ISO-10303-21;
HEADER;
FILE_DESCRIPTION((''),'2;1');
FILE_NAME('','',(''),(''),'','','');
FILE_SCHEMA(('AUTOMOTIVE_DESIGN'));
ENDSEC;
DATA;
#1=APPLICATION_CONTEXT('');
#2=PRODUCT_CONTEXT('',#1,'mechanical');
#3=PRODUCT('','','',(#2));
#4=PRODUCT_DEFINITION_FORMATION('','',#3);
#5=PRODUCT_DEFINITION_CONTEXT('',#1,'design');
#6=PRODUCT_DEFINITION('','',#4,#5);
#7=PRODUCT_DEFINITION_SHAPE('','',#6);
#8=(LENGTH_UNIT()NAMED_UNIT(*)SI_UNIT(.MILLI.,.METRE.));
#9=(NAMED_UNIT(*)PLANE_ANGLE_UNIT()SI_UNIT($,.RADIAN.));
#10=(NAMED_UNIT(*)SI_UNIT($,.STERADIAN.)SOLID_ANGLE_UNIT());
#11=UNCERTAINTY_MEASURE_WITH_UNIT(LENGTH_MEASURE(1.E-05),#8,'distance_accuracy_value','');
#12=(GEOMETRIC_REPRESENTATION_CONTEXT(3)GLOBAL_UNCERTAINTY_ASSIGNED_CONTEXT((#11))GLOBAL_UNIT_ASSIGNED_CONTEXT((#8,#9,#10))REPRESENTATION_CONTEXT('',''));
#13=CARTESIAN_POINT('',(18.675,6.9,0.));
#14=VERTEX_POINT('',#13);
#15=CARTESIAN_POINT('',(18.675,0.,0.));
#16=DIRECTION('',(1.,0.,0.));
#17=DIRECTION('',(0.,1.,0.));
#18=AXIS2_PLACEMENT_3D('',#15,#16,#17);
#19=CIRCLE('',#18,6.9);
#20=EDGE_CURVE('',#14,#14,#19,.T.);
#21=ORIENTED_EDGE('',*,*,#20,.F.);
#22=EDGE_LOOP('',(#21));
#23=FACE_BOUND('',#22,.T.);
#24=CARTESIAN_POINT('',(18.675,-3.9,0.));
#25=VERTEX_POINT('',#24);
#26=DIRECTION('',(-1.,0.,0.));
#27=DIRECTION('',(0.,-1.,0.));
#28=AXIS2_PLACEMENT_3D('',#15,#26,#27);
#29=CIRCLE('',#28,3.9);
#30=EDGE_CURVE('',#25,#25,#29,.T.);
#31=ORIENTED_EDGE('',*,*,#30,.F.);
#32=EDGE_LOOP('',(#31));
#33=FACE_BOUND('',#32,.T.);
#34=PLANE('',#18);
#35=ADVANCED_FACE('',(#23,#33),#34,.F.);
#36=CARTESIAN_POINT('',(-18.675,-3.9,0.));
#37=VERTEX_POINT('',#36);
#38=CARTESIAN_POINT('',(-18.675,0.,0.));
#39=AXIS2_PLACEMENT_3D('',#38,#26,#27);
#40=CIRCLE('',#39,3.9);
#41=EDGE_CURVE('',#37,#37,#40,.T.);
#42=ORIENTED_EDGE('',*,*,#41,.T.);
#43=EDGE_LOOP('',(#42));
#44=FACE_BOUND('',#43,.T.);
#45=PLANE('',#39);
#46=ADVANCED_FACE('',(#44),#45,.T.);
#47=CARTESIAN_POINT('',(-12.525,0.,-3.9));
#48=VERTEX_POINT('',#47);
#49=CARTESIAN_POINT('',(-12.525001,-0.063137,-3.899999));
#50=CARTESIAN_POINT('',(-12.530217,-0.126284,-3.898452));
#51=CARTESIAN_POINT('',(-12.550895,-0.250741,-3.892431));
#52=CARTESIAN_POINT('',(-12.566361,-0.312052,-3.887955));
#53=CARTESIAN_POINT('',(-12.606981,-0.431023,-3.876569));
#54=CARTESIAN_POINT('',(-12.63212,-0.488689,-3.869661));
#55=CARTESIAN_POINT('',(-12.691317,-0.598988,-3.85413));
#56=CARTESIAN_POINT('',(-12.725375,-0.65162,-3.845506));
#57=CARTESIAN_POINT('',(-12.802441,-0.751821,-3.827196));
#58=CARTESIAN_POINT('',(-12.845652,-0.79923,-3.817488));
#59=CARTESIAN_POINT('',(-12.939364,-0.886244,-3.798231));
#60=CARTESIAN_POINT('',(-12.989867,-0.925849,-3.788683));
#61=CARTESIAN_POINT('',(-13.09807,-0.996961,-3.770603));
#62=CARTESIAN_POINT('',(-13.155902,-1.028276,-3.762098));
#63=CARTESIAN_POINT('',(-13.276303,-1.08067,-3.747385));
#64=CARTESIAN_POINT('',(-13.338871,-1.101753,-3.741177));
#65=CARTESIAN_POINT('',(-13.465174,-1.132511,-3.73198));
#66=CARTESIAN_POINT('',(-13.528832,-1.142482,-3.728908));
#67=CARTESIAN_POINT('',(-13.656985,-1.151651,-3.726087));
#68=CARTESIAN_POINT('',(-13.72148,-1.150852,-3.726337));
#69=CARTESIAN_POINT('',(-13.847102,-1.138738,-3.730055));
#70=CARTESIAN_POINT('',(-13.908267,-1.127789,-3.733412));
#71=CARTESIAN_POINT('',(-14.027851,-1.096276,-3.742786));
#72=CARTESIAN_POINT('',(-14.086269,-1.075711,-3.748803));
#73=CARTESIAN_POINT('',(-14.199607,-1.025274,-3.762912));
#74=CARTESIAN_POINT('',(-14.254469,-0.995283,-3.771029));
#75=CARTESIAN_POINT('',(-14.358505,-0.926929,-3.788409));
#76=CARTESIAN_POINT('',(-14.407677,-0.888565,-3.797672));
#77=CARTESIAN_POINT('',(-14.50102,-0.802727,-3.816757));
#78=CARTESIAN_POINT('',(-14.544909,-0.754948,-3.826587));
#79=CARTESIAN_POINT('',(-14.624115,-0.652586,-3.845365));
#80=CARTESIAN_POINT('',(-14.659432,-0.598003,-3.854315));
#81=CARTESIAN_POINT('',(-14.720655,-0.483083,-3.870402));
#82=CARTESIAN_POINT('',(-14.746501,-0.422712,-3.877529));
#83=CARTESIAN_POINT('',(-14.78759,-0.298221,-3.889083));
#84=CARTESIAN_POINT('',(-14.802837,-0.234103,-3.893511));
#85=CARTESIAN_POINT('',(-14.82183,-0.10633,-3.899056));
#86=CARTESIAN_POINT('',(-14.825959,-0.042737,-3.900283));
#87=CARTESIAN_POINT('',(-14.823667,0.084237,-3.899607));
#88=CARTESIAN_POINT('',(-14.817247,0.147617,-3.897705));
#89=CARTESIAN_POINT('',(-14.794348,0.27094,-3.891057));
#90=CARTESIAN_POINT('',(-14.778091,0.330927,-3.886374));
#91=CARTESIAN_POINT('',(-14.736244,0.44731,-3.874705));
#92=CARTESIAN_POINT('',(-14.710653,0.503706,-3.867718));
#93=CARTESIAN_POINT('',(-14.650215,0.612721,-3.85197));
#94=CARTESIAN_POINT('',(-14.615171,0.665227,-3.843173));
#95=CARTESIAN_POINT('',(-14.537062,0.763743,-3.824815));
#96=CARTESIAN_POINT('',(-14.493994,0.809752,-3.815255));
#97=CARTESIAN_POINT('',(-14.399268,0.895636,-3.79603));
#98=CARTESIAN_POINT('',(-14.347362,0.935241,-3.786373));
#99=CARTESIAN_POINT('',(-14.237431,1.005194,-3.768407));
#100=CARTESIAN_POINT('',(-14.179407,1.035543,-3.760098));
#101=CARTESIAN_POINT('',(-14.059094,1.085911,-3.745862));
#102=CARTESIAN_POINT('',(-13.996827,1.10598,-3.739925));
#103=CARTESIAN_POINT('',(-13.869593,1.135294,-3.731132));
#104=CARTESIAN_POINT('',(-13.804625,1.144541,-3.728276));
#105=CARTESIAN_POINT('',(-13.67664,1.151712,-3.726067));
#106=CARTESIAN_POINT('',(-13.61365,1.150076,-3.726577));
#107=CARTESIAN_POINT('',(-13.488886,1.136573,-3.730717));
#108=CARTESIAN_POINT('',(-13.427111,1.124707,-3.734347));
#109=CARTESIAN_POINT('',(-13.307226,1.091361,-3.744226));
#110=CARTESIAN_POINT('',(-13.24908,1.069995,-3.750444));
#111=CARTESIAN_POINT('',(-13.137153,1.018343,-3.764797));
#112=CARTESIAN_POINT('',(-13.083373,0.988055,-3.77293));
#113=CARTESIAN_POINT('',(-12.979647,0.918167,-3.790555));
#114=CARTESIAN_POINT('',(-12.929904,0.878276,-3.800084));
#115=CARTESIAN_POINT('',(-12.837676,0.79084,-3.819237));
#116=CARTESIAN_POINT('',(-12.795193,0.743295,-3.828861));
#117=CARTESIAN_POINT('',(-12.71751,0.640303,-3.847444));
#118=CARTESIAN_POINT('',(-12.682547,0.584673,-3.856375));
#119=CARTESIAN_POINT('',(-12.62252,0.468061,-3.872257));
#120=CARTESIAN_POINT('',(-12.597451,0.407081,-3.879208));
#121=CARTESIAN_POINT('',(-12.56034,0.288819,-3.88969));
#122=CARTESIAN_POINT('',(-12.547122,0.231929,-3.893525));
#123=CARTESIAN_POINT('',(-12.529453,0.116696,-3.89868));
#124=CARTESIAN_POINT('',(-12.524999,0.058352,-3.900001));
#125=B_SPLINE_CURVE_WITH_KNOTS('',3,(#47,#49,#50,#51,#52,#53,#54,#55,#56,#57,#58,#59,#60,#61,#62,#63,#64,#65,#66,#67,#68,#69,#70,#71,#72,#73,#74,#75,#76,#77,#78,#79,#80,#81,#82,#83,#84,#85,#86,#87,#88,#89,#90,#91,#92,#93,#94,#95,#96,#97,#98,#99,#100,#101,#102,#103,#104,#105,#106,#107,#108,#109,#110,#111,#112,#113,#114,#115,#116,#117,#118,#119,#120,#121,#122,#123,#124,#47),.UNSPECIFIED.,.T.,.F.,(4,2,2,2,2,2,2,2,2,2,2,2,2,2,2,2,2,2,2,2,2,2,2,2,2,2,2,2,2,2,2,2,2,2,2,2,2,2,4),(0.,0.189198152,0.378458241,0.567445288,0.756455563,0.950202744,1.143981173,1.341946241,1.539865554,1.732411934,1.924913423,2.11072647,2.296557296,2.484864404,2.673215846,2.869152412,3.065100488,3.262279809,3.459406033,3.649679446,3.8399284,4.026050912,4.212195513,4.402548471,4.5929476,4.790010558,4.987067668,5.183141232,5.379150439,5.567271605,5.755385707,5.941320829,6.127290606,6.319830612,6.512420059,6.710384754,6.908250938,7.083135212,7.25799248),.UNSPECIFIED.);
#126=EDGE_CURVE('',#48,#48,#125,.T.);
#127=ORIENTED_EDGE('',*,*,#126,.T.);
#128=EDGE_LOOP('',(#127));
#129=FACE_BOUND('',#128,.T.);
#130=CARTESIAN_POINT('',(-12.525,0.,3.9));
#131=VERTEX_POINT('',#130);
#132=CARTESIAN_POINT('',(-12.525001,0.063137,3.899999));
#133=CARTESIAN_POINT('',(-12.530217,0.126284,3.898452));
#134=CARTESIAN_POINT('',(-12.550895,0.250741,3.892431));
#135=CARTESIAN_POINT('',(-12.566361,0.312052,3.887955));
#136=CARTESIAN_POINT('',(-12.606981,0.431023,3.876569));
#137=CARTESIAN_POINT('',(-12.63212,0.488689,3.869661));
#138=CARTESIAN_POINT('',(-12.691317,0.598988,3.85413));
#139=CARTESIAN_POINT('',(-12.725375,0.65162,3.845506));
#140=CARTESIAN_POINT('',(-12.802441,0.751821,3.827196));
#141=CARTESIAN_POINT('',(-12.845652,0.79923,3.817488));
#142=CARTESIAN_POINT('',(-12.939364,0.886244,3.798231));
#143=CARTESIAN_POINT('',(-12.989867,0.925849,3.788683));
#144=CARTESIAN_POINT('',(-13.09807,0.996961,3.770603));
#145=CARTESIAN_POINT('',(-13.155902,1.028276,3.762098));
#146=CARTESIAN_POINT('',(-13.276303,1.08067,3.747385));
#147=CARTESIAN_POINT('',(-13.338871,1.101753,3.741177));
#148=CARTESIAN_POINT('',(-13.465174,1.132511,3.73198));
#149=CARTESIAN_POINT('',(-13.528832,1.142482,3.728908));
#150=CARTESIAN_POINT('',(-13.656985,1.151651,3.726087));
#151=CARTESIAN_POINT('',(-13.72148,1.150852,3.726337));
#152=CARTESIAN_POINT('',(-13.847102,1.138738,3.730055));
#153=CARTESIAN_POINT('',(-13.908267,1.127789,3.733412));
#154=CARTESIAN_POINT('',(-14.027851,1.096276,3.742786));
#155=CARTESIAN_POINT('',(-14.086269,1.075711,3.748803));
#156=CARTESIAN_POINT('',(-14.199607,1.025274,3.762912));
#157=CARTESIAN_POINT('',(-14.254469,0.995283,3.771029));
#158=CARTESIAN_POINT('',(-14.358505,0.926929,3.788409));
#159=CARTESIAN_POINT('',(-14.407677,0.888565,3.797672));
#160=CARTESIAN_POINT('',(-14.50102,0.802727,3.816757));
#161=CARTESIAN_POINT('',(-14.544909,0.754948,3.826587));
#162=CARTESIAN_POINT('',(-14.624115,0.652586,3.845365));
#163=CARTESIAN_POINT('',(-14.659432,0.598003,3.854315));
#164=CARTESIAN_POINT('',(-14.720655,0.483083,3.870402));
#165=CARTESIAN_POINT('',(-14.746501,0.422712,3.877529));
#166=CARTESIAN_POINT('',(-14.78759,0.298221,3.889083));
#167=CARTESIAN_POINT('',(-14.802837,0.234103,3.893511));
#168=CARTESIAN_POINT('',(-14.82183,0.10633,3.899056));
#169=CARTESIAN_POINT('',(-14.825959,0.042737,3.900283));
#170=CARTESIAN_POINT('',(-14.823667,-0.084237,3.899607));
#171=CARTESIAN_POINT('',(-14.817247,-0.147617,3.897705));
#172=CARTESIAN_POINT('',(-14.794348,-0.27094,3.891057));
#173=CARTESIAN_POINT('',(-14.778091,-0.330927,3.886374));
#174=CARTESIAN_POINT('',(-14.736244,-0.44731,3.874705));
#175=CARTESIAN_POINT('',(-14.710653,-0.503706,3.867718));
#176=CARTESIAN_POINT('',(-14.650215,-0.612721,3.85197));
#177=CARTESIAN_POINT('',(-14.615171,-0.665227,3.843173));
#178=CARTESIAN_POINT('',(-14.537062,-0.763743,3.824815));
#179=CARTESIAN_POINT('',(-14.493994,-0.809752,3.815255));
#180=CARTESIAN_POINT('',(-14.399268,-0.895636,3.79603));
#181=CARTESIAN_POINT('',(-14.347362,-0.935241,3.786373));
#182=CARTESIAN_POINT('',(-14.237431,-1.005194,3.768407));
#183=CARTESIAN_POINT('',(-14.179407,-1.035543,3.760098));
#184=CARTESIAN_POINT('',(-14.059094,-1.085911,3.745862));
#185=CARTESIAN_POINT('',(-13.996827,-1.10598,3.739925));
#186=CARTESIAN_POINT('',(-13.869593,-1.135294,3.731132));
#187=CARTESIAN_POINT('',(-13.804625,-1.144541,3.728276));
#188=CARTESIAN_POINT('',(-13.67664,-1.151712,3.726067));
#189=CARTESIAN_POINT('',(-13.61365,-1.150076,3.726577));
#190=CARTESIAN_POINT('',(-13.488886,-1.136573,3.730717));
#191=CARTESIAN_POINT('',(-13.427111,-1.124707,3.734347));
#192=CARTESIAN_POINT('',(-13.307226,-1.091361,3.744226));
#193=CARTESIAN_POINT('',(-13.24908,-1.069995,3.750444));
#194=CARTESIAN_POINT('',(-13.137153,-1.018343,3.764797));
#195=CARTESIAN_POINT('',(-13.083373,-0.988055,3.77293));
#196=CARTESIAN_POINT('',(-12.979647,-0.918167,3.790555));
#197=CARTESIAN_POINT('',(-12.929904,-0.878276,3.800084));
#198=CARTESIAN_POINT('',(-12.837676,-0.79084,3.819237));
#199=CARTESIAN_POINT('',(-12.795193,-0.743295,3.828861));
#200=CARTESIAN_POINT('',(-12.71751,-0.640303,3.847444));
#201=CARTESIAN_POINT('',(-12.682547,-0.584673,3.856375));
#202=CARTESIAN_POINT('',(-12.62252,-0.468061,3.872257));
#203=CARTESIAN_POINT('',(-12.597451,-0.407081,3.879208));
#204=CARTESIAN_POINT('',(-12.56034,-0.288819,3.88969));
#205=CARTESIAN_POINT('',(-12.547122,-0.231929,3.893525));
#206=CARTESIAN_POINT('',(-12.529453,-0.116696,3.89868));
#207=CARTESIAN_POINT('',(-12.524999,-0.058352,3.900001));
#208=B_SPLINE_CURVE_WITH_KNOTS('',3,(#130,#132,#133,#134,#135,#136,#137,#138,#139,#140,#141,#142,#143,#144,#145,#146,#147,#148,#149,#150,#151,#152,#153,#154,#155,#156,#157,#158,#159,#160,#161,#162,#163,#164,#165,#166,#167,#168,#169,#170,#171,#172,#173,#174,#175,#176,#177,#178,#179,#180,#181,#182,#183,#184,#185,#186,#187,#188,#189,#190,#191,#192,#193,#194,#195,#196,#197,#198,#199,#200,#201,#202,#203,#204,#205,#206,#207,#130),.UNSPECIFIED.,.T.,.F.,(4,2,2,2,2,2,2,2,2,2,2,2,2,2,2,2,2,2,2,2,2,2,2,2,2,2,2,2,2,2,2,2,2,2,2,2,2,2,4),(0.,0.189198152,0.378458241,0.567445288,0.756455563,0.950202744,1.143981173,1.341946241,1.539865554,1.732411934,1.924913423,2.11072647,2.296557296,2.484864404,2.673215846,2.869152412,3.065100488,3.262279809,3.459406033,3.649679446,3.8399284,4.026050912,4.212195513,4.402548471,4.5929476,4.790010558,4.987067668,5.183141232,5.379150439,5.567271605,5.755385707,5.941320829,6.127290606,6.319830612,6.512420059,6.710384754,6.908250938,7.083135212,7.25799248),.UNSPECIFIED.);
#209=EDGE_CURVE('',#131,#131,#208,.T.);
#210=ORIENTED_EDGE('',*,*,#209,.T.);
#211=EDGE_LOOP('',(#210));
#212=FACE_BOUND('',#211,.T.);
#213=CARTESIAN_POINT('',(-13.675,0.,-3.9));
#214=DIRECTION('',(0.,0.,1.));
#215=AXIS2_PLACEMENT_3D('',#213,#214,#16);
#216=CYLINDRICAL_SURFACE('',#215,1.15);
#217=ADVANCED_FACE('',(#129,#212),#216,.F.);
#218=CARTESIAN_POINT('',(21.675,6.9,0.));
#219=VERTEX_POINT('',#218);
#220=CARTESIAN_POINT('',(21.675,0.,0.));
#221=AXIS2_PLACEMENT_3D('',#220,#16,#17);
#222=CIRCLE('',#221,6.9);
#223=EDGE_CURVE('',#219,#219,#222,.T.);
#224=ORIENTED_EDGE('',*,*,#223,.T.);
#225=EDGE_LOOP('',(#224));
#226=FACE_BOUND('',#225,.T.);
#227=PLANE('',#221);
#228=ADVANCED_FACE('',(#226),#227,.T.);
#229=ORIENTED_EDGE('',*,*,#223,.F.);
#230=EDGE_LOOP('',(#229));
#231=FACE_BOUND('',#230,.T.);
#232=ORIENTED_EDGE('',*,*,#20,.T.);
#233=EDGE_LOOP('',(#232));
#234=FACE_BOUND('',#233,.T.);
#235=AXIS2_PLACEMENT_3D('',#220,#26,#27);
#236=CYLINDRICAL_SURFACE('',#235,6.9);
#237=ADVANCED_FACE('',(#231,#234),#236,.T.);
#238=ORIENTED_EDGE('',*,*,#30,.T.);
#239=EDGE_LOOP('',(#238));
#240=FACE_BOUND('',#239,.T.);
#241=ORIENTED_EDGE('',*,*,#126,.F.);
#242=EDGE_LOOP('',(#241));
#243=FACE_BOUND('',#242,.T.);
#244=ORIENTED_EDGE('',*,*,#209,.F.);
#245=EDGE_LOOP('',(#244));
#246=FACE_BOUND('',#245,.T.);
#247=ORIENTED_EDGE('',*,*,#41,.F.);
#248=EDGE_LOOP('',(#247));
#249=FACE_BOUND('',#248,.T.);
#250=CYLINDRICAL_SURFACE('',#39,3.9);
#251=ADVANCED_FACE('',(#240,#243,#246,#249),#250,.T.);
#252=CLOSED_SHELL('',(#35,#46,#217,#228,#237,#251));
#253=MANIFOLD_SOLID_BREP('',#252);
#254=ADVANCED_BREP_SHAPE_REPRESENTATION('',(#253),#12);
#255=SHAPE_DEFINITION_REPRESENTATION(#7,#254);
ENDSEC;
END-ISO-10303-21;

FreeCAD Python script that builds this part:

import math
import FreeCAD as App
import Part
import Sketcher

V = App.Vector

doc = App.newDocument("Part")
params = doc.addObject("Spreadsheet::Sheet", "Params")
for row, (alias, value) in enumerate([
    ("sketch1_radius", "1.15 mm"),
    ("sketch1_width", "31.2 mm"),
    ("sketch1_height", "3.9 mm"),
    ("revolution_angle", "360 deg"),
    ("sketch2_diameter", "2.3 mm"),
    ("sketch3_diameter", "13.8 mm"),
    ("pad1_length", "3 mm"),
], start=1):
    params.set(f"A{row}", alias)
    params.set(f"B{row}", "=" + value)
    params.setAlias(f"B{row}", alias)

body = doc.addObject("PartDesign::Body", "Body")

sketch1 = body.newObject("Sketcher::SketchObject", "Sketch")
sketch1.AttachmentSupport = (doc.getObject("XY_Plane"), [""])
sketch1.MapMode = "FlatFace"
sketch1.addGeometry(Part.LineSegment(V(18.7, 0, 0), V(-12.5, 0, 0)), False)
sketch1.addGeometry(Part.ArcOfCircle(Part.Circle(V(-13.7, 0, 0), V(0, 0, 1), 1.1), math.radians(180), math.radians(360)), False)
sketch1.addGeometry(Part.LineSegment(V(-14.8, 0, 0), V(-18.7, 0, 0)), False)
sketch1.addGeometry(Part.LineSegment(V(-18.7, 0, 0), V(-18.7, -3.9, 0)), False)
sketch1.addGeometry(Part.LineSegment(V(-18.7, -3.9, 0), V(18.7, -3.9, 0)), False)
sketch1.addGeometry(Part.LineSegment(V(18.7, -3.9, 0), V(18.7, 0, 0)), False)
sketch1.addConstraint(Sketcher.Constraint("Coincident", 0, 2, 1, 2))
sketch1.addConstraint(Sketcher.Constraint("Coincident", 1, 1, 2, 1))
sketch1.addConstraint(Sketcher.Constraint("Coincident", 2, 2, 3, 1))
sketch1.addConstraint(Sketcher.Constraint("Coincident", 3, 2, 4, 1))
sketch1.addConstraint(Sketcher.Constraint("Coincident", 4, 2, 5, 1))
sketch1.addConstraint(Sketcher.Constraint("Coincident", 5, 2, 0, 1))
sketch1.addConstraint(Sketcher.Constraint("Horizontal", 0))
sketch1.addConstraint(Sketcher.Constraint("Horizontal", 2))
sketch1.addConstraint(Sketcher.Constraint("Vertical", 3))
sketch1.addConstraint(Sketcher.Constraint("Horizontal", 4))
sketch1.addConstraint(Sketcher.Constraint("Vertical", 5))
sketch1.addConstraint(Sketcher.Constraint("Symmetric", 2, 2, 5, 2, -1, 1))
sketch1.addConstraint(Sketcher.Constraint("PointOnObject", 1, 3, -1))
sketch1.addConstraint(Sketcher.Constraint("PointOnObject", 0, 2, -1))
sketch1.addConstraint(Sketcher.Constraint("Radius", 1, 1.15))
sketch1.addConstraint(Sketcher.Constraint("DistanceX", 0, 2, 0, 1, 31.2))
sketch1.addConstraint(Sketcher.Constraint("DistanceY", 3, 2, 3, 1, 3.9))
sketch1.addConstraint(Sketcher.Constraint("DistanceX", 2, 2, 1, 3, 5.0))
sketch1.setExpression("Constraints[14]", "Params.sketch1_radius")
sketch1.setExpression("Constraints[15]", "Params.sketch1_width")
sketch1.setExpression("Constraints[16]", "Params.sketch1_height")
revolution = body.newObject("PartDesign::Revolution", "Revolution")
revolution.Profile = sketch1
revolution.ReferenceAxis = (sketch1, ["H_Axis"])
revolution.setExpression("Angle", "Params.revolution_angle")

sketch2 = body.newObject("Sketcher::SketchObject", "Sketch001")
sketch2.AttachmentSupport = (doc.getObject("XY_Plane"), [""])
sketch2.MapMode = "FlatFace"
sketch2.addGeometry(Part.Circle(V(-13.7, 0, 0), V(0, 0, 1), 1.1), False)
sketch2.addConstraint(Sketcher.Constraint("PointOnObject", 0, 3, -1))
sketch2.addConstraint(Sketcher.Constraint("Diameter", 0, 2.3))
sketch2.addConstraint(Sketcher.Constraint("DistanceX", 0, 3, -1, 1, 13.675))
sketch2.setExpression("Constraints[1]", "Params.sketch2_diameter")
pocket1 = body.newObject("PartDesign::Pocket", "Pocket")
pocket1.Profile = sketch2
pocket1.Type = "ThroughAll"
pocket1.Midplane = True

sketch3 = body.newObject("Sketcher::SketchObject", "Sketch002")
sketch3.AttachmentSupport = (doc.getObject("YZ_Plane"), [""])
sketch3.MapMode = "FlatFace"
sketch3.AttachmentOffset = App.Placement(V(0, 0, 18.675), App.Rotation())
sketch3.addGeometry(Part.Circle(V(0, 0, 0), V(0, 0, 1), 7), False)
sketch3.addConstraint(Sketcher.Constraint("Coincident", 0, 3, -1, 1))
sketch3.addConstraint(Sketcher.Constraint("Diameter", 0, 13.8))
sketch3.setExpression("Constraints[1]", "Params.sketch3_diameter")
pad1 = body.newObject("PartDesign::Pad", "Pad")
pad1.Profile = sketch3
pad1.setExpression("Length", "Params.pad1_length")

doc.recompute()
